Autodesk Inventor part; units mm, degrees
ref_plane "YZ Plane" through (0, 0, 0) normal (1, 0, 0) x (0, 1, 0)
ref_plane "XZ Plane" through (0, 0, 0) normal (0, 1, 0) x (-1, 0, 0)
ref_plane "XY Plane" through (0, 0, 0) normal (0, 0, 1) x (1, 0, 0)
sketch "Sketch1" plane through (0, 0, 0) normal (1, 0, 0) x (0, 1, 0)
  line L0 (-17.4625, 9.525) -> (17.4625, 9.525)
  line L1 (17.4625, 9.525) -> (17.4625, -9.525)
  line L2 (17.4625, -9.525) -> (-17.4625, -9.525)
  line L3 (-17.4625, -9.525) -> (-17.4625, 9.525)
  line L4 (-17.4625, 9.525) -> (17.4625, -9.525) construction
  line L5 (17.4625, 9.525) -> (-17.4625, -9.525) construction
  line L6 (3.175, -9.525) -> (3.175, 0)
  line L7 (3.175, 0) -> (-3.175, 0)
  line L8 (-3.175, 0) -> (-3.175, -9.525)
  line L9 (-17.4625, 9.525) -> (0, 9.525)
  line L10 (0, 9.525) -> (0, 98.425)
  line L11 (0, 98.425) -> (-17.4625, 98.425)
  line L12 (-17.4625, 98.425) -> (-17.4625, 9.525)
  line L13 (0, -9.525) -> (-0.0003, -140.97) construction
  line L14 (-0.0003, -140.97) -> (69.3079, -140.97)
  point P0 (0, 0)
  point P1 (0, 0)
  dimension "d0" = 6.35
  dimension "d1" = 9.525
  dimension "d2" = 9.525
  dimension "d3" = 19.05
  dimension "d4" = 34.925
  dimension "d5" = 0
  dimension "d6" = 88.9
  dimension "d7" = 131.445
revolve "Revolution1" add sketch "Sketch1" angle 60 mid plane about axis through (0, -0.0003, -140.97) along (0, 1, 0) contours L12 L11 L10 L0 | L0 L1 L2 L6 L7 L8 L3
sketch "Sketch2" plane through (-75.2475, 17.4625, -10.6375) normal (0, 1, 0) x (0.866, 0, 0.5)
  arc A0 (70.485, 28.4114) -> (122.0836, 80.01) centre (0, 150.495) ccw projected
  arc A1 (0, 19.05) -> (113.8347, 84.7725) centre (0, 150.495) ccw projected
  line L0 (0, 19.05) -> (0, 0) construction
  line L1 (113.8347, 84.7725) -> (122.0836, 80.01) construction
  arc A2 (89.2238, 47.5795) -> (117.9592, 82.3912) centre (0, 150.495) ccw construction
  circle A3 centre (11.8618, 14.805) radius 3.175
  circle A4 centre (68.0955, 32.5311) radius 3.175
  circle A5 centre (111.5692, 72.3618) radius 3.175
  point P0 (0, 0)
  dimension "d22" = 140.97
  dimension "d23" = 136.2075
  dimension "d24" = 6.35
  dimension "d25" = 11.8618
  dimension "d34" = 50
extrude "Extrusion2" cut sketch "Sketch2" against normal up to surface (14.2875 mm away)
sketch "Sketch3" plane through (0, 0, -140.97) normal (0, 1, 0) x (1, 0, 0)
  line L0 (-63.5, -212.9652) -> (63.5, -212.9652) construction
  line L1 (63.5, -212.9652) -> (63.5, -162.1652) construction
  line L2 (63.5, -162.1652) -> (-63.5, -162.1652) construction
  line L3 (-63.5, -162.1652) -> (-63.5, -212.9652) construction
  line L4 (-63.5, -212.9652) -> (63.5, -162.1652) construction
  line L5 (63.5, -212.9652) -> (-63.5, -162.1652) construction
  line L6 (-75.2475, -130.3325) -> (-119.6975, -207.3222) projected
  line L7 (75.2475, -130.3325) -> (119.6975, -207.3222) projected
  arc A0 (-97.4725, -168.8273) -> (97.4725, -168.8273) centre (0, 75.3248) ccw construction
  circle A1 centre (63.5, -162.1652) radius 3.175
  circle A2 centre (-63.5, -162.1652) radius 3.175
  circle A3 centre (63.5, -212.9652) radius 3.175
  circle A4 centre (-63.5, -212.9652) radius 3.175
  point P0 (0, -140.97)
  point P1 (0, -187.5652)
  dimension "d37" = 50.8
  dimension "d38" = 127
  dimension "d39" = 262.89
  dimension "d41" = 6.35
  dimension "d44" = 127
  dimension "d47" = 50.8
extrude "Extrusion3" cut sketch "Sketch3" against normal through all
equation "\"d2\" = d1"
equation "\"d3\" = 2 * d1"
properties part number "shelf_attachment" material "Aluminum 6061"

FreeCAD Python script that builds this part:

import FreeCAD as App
import Part
import Sketcher
from FreeCAD import Vector
Q = App.Units.Quantity


def add_polygon(sketch, points):
    """Adds a closed chain of lines whose ends are joined by coincident constraints."""
    first, n = sketch.GeometryCount, len(points)
    for a, b in zip(points, points[1:] + points[:1]):
        sketch.addGeometry(Part.LineSegment(App.Vector(*a, 0), App.Vector(*b, 0)), False)
    for i in range(n):
        sketch.addConstraint(Sketcher.Constraint("Coincident", first + i, 2, first + (i + 1) % n, 1))

doc = App.newDocument("Part")
body = doc.addObject("PartDesign::Body", "Body")

# Sketch on YZ plane
sketch1 = doc.addObject("Sketcher::SketchObject", "Sketch")
body.addObject(sketch1)
sketch1.AttachmentSupport = (doc.YZ_Plane, [""])
sketch1.MapMode = "FlatFace"
add_polygon(sketch1, [(-17, 98), (-17, -10), (-3, -10), (-3, 0), (3, 0), (3, -10), (17, -10), (17, 10), (0, 10), (0, 98)])  # lines 0-9
sketch1.addGeometry(Part.LineSegment(Vector(-17, -141, 0), Vector(17, -141, 0)), True)  # axis
sketch1.addConstraint(Sketcher.Constraint("Vertical", 0))
sketch1.addConstraint(Sketcher.Constraint("Horizontal", 1))
sketch1.addConstraint(Sketcher.Constraint("Vertical", 2))
sketch1.addConstraint(Sketcher.Constraint("Horizontal", 3))
sketch1.addConstraint(Sketcher.Constraint("Vertical", 4))
sketch1.addConstraint(Sketcher.Constraint("Horizontal", 5))
sketch1.addConstraint(Sketcher.Constraint("Vertical", 6))
sketch1.addConstraint(Sketcher.Constraint("Horizontal", 7))
sketch1.addConstraint(Sketcher.Constraint("Vertical", 8))
sketch1.addConstraint(Sketcher.Constraint("Horizontal", 9))
sketch1.addConstraint(Sketcher.Constraint("Horizontal", 10))
sketch1.addConstraint(Sketcher.Constraint("Symmetric", 2, 2, 3, 2, -1, 1))
sketch1.addConstraint(Sketcher.Constraint("Symmetric", 0, 2, 6, 2, -1, 1))
sketch1.addConstraint(Sketcher.Constraint("PointOnObject", 7, 2, -2))
sketch1.addConstraint(Sketcher.Constraint("Horizontal", 1, 2, 4, 2))
sketch1.addConstraint(Sketcher.Constraint("Vertical", 9, 2, 10, 1))
sketch1.addConstraint(Sketcher.Constraint("Vertical", 6, 2, 10, 2))
sketch1.addConstraint(Sketcher.Constraint("DistanceY", 8, 1, 8, 2, Q("3.5 in")))
sketch1.addConstraint(Sketcher.Constraint("DistanceX", 3, 1, 3, 2, Q("0.25 in")))
sketch1.addConstraint(Sketcher.Constraint("DistanceY", 6, 1, 6, 2, Q("0.75 in")))
sketch1.addConstraint(Sketcher.Constraint("DistanceX", 10, 1, 10, 2, Q("1.375 in")))
sketch1.addConstraint(Sketcher.Constraint("DistanceY", 10, 1, 0, 2, Q("5.175 in")))
revolution = doc.addObject("PartDesign::Revolution", "Revolution")
body.addObject(revolution)
revolution.Profile = sketch1
revolution.ReferenceAxis = (sketch1, ["Axis0"])
revolution.Angle = 60
revolution.Midplane = True

# Sketch on XZ plane
sketch2 = doc.addObject("Sketcher::SketchObject", "Sketch001")
body.addObject(sketch2)
sketch2.AttachmentSupport = (doc.XZ_Plane, [""])
sketch2.MapMode = "FlatFace"
sketch2.AttachmentOffset = App.Placement(Vector(0, 0, -0.6875 * 25.4), App.Rotation())
sketch2.addGeometry(Part.Circle(Vector(-57.6, -17.5, 0), Vector(0, 0, 1), 3.2), False)
sketch2.addGeometry(Part.Circle(Vector(0, -4.8, 0), Vector(0, 0, 1), 3.2), False)
sketch2.addGeometry(Part.Circle(Vector(57.6, -17.5, 0), Vector(0, 0, 1), 3.2), False)
sketch2.addConstraint(Sketcher.Constraint("Equal", 0, 1))
sketch2.addConstraint(Sketcher.Constraint("Equal", 1, 2))
sketch2.addConstraint(Sketcher.Constraint("Diameter", 0, Q("0.25 in")))
sketch2.addConstraint(Sketcher.Constraint("DistanceY", 1, 3, -1, 1, Q("0.1875 in")))
sketch2.addConstraint(Sketcher.Constraint("DistanceX", 0, 3, -1, 1, Q("57.5724 mm")))
sketch2.addConstraint(Sketcher.Constraint("DistanceY", 0, 3, -1, 1, Q("17.528 mm")))
sketch2.addConstraint(Sketcher.Constraint("DistanceX", 1, 3, -1, 1, Q("0.0095 mm")))
sketch2.addConstraint(Sketcher.Constraint("DistanceX", -1, 1, 2, 3, Q("57.5552 mm")))
sketch2.addConstraint(Sketcher.Constraint("DistanceY", 2, 3, -1, 1, Q("17.52 mm")))
pocket1 = doc.addObject("PartDesign::Pocket", "Pocket")
body.addObject(pocket1)
pocket1.Profile = sketch2
pocket1.Length = Q("0.5625 in")
pocket1.Reversed = True

# Sketch on XZ plane
sketch3 = doc.addObject("Sketcher::SketchObject", "Sketch002")
body.addObject(sketch3)
sketch3.AttachmentSupport = (doc.XZ_Plane, [""])
sketch3.MapMode = "FlatFace"
sketch3.addGeometry(Part.Circle(Vector(63.5, 21.2, 0), Vector(0, 0, 1), 3.2), False)
sketch3.addGeometry(Part.Circle(Vector(-63.5, 21.2, 0), Vector(0, 0, 1), 3.2), False)
sketch3.addGeometry(Part.Circle(Vector(63.5, 72, 0), Vector(0, 0, 1), 3.2), False)
sketch3.addGeometry(Part.Circle(Vector(-63.5, 72, 0), Vector(0, 0, 1), 3.2), False)
sketch3.addConstraint(Sketcher.Constraint("Equal", 0, 1))
sketch3.addConstraint(Sketcher.Constraint("Equal", 1, 2))
sketch3.addConstraint(Sketcher.Constraint("Equal", 2, 3))
sketch3.addConstraint(Sketcher.Constraint("Symmetric", 0, 3, 1, 3, -2))
sketch3.addConstraint(Sketcher.Constraint("Symmetric", 2, 3, 3, 3, -2))
sketch3.addConstraint(Sketcher.Constraint("Vertical", 0, 3, 2, 3))
sketch3.addConstraint(Sketcher.Constraint("Diameter", 0, Q("0.25 in")))
sketch3.addConstraint(Sketcher.Constraint("DistanceX", 1, 3, 0, 3, Q("5 in")))
sketch3.addConstraint(Sketcher.Constraint("DistanceY", 0, 3, 2, 3, Q("2 in")))
sketch3.addConstraint(Sketcher.Constraint("DistanceY", -1, 1, 0, 3, Q("21.1952 mm")))
pocket2 = doc.addObject("PartDesign::Pocket", "Pocket001")
body.addObject(pocket2)
pocket2.Profile = sketch3
pocket2.Type = "ThroughAll"
pocket2.Reversed = True

doc.recompute()
